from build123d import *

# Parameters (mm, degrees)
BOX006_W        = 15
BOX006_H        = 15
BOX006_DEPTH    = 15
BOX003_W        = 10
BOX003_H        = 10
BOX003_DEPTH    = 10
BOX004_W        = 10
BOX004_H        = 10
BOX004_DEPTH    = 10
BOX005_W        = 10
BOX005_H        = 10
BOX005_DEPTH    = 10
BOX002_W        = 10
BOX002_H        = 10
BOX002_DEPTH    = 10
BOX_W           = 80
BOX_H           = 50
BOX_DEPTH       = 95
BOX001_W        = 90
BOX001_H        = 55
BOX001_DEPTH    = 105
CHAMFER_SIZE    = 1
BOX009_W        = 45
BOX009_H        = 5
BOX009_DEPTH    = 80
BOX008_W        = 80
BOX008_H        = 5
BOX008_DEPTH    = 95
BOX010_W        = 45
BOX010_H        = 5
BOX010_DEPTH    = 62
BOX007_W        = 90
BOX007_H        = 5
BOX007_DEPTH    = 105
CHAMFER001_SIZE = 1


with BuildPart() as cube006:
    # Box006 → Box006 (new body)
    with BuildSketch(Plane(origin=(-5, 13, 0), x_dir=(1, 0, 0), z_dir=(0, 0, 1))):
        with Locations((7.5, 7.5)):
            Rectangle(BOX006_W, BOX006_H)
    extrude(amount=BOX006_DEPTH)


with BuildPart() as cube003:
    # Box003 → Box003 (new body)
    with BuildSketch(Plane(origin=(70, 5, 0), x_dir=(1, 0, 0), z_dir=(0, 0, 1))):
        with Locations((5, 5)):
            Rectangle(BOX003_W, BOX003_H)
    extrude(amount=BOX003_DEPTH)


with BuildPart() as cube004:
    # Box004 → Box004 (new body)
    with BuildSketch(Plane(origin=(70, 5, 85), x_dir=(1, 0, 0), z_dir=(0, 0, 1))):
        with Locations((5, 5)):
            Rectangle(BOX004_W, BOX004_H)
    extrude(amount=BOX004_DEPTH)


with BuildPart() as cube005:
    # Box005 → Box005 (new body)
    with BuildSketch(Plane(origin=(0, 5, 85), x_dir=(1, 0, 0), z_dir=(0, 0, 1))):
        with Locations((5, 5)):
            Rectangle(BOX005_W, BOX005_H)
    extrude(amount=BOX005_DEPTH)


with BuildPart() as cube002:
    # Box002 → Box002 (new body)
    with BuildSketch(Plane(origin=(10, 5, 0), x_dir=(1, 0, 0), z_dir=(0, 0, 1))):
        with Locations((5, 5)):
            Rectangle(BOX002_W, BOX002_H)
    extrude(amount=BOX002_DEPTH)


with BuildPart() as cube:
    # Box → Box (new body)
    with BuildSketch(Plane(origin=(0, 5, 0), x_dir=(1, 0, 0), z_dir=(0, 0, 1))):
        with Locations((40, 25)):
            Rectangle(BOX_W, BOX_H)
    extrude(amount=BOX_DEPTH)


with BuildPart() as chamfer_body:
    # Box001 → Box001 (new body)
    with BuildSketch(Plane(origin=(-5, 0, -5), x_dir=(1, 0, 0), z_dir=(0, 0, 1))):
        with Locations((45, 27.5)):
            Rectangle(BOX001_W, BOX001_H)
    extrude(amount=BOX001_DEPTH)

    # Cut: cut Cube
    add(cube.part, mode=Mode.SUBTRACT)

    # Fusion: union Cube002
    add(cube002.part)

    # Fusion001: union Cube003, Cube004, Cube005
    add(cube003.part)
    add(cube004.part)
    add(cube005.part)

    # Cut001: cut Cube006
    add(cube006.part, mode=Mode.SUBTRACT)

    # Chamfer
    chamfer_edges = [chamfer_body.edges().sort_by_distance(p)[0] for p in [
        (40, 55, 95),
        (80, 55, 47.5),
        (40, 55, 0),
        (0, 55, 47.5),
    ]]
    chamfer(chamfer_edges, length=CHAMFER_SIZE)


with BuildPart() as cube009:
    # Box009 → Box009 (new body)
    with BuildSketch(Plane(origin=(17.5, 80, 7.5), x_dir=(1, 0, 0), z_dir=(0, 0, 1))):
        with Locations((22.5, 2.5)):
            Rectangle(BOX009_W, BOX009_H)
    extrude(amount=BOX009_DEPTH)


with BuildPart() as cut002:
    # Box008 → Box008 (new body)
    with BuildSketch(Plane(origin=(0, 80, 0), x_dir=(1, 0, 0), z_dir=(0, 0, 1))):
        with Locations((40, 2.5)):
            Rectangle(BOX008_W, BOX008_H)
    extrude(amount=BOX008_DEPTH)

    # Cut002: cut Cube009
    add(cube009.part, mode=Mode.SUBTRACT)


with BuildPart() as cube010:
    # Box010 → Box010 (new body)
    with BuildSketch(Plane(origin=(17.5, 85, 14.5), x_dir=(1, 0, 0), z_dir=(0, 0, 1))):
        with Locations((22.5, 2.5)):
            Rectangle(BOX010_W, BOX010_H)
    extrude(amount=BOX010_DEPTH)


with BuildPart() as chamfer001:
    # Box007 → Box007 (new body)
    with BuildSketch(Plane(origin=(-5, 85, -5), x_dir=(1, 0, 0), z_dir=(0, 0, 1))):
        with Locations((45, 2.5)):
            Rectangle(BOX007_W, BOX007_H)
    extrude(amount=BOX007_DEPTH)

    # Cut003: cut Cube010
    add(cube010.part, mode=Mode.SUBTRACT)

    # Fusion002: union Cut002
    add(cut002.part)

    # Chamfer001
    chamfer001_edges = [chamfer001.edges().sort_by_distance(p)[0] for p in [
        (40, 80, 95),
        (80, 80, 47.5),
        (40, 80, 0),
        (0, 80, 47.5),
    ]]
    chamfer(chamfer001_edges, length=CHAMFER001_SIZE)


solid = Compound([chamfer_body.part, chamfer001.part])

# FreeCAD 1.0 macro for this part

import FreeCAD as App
import Part
import Sketcher


def edges_at(feature, points):
    """Names of the edges that pass closest to the given points."""
    edges = feature.Shape.Edges
    near = lambda p: min(range(len(edges)), key=lambda i: edges[i].distToShape(Part.Vertex(*p))[0])
    return sorted({f"Edge{near(p) + 1}" for p in points})

doc = App.newDocument("Part")
body = doc.addObject("PartDesign::Body", "Body")

sketch1 = doc.addObject("Sketcher::SketchObject", "Sketch")
body.addObject(sketch1)
sketch1.AttachmentSupport = (doc.XY_Plane, [""])
sketch1.MapMode = "FlatFace"
sketch1.addGeometry([
    Part.LineSegment(App.Vector(-5, 28, 0), App.Vector(-5, 13, 0)),
    Part.LineSegment(App.Vector(-5, 13, 0), App.Vector(10, 13, 0)),
    Part.LineSegment(App.Vector(10, 13, 0), App.Vector(10, 28, 0)),
    Part.LineSegment(App.Vector(10, 28, 0), App.Vector(-5, 28, 0)),
], False)
sketch1.addConstraint([
    Sketcher.Constraint("Coincident", 0, 2, 1, 1),
    Sketcher.Constraint("Coincident", 1, 2, 2, 1),
    Sketcher.Constraint("Coincident", 2, 2, 3, 1),
    Sketcher.Constraint("Coincident", 3, 2, 0, 1),
    Sketcher.Constraint("Vertical", 0),
    Sketcher.Constraint("Horizontal", 1),
    Sketcher.Constraint("Vertical", 2),
    Sketcher.Constraint("Horizontal", 3),
    Sketcher.Constraint("Equal", 3, 0),
    Sketcher.Constraint("DistanceX", 1, 1, 1, 2, 15.0),
    Sketcher.Constraint("DistanceX", 0, 2, -1, 1, 5.0),
    Sketcher.Constraint("DistanceY", -1, 1, 0, 2, 13.0),
])
pad1 = doc.addObject("PartDesign::Pad", "Pad")
body.addObject(pad1)
pad1.Profile = sketch1
pad1.Length = 15
body2 = doc.addObject("PartDesign::Body", "Body001")

sketch2 = doc.addObject("Sketcher::SketchObject", "Sketch001")
body2.addObject(sketch2)
sketch2.AttachmentSupport = (doc.getObject("XY_Plane001"), [""])
sketch2.MapMode = "FlatFace"
sketch2.addGeometry([
    Part.LineSegment(App.Vector(70, 15, 0), App.Vector(70, 5, 0)),
    Part.LineSegment(App.Vector(70, 5, 0), App.Vector(80, 5, 0)),
    Part.LineSegment(App.Vector(80, 5, 0), App.Vector(80, 15, 0)),
    Part.LineSegment(App.Vector(80, 15, 0), App.Vector(70, 15, 0)),
], False)
sketch2.addConstraint([
    Sketcher.Constraint("Coincident", 0, 2, 1, 1),
    Sketcher.Constraint("Coincident", 1, 2, 2, 1),
    Sketcher.Constraint("Coincident", 2, 2, 3, 1),
    Sketcher.Constraint("Coincident", 3, 2, 0, 1),
    Sketcher.Constraint("Vertical", 0),
    Sketcher.Constraint("Horizontal", 1),
    Sketcher.Constraint("Vertical", 2),
    Sketcher.Constraint("Horizontal", 3),
    Sketcher.Constraint("Equal", 3, 0),
    Sketcher.Constraint("DistanceX", 1, 1, 1, 2, 10.0),
    Sketcher.Constraint("DistanceX", -1, 1, 0, 2, 70.0),
    Sketcher.Constraint("DistanceY", -1, 1, 0, 2, 5.0),
])
pad2 = doc.addObject("PartDesign::Pad", "Pad001")
body2.addObject(pad2)
pad2.Profile = sketch2
pad2.Length = 10
body3 = doc.addObject("PartDesign::Body", "Body002")

sketch3 = doc.addObject("Sketcher::SketchObject", "Sketch002")
body3.addObject(sketch3)
sketch3.AttachmentSupport = (doc.getObject("XY_Plane002"), [""])
sketch3.MapMode = "FlatFace"
sketch3.AttachmentOffset = App.Placement(App.Vector(0, 0, 85), App.Rotation())
sketch3.addGeometry([
    Part.LineSegment(App.Vector(70, 15, 0), App.Vector(70, 5, 0)),
    Part.LineSegment(App.Vector(70, 5, 0), App.Vector(80, 5, 0)),
    Part.LineSegment(App.Vector(80, 5, 0), App.Vector(80, 15, 0)),
    Part.LineSegment(App.Vector(80, 15, 0), App.Vector(70, 15, 0)),
], False)
sketch3.addConstraint([
    Sketcher.Constraint("Coincident", 0, 2, 1, 1),
    Sketcher.Constraint("Coincident", 1, 2, 2, 1),
    Sketcher.Constraint("Coincident", 2, 2, 3, 1),
    Sketcher.Constraint("Coincident", 3, 2, 0, 1),
    Sketcher.Constraint("Vertical", 0),
    Sketcher.Constraint("Horizontal", 1),
    Sketcher.Constraint("Vertical", 2),
    Sketcher.Constraint("Horizontal", 3),
    Sketcher.Constraint("Equal", 3, 0),
    Sketcher.Constraint("DistanceX", 1, 1, 1, 2, 10.0),
    Sketcher.Constraint("DistanceX", -1, 1, 0, 2, 70.0),
    Sketcher.Constraint("DistanceY", -1, 1, 0, 2, 5.0),
])
pad3 = doc.addObject("PartDesign::Pad", "Pad002")
body3.addObject(pad3)
pad3.Profile = sketch3
pad3.Length = 10
body4 = doc.addObject("PartDesign::Body", "Body003")

sketch4 = doc.addObject("Sketcher::SketchObject", "Sketch003")
body4.addObject(sketch4)
sketch4.AttachmentSupport = (doc.getObject("XY_Plane003"), [""])
sketch4.MapMode = "FlatFace"
sketch4.AttachmentOffset = App.Placement(App.Vector(0, 0, 85), App.Rotation())
sketch4.addGeometry([
    Part.LineSegment(App.Vector(0, 15, 0), App.Vector(0, 5, 0)),
    Part.LineSegment(App.Vector(0, 5, 0), App.Vector(10, 5, 0)),
    Part.LineSegment(App.Vector(10, 5, 0), App.Vector(10, 15, 0)),
    Part.LineSegment(App.Vector(10, 15, 0), App.Vector(0, 15, 0)),
], False)
sketch4.addConstraint([
    Sketcher.Constraint("Coincident", 0, 2, 1, 1),
    Sketcher.Constraint("Coincident", 1, 2, 2, 1),
    Sketcher.Constraint("Coincident", 2, 2, 3, 1),
    Sketcher.Constraint("Coincident", 3, 2, 0, 1),
    Sketcher.Constraint("Vertical", 0),
    Sketcher.Constraint("Horizontal", 1),
    Sketcher.Constraint("Vertical", 2),
    Sketcher.Constraint("Horizontal", 3),
    Sketcher.Constraint("PointOnObject", 0, 2, -2),
    Sketcher.Constraint("Equal", 3, 0),
    Sketcher.Constraint("DistanceX", 1, 1, 1, 2, 10.0),
    Sketcher.Constraint("DistanceY", -1, 1, 0, 2, 5.0),
])
pad4 = doc.addObject("PartDesign::Pad", "Pad003")
body4.addObject(pad4)
pad4.Profile = sketch4
pad4.Length = 10
body5 = doc.addObject("PartDesign::Body", "Body004")

sketch5 = doc.addObject("Sketcher::SketchObject", "Sketch004")
body5.addObject(sketch5)
sketch5.AttachmentSupport = (doc.getObject("XY_Plane004"), [""])
sketch5.MapMode = "FlatFace"
sketch5.addGeometry([
    Part.LineSegment(App.Vector(10, 15, 0), App.Vector(10, 5, 0)),
    Part.LineSegment(App.Vector(10, 5, 0), App.Vector(20, 5, 0)),
    Part.LineSegment(App.Vector(20, 5, 0), App.Vector(20, 15, 0)),
    Part.LineSegment(App.Vector(20, 15, 0), App.Vector(10, 15, 0)),
], False)
sketch5.addConstraint([
    Sketcher.Constraint("Coincident", 0, 2, 1, 1),
    Sketcher.Constraint("Coincident", 1, 2, 2, 1),
    Sketcher.Constraint("Coincident", 2, 2, 3, 1),
    Sketcher.Constraint("Coincident", 3, 2, 0, 1),
    Sketcher.Constraint("Vertical", 0),
    Sketcher.Constraint("Horizontal", 1),
    Sketcher.Constraint("Vertical", 2),
    Sketcher.Constraint("Horizontal", 3),
    Sketcher.Constraint("Equal", 3, 0),
    Sketcher.Constraint("DistanceX", 1, 1, 1, 2, 10.0),
    Sketcher.Constraint("DistanceX", -1, 1, 0, 2, 10.0),
    Sketcher.Constraint("DistanceY", -1, 1, 0, 2, 5.0),
])
pad5 = doc.addObject("PartDesign::Pad", "Pad004")
body5.addObject(pad5)
pad5.Profile = sketch5
pad5.Length = 10
body6 = doc.addObject("PartDesign::Body", "Body005")

sketch6 = doc.addObject("Sketcher::SketchObject", "Sketch005")
body6.addObject(sketch6)
sketch6.AttachmentSupport = (doc.getObject("XY_Plane005"), [""])
sketch6.MapMode = "FlatFace"
sketch6.addGeometry([
    Part.LineSegment(App.Vector(0, 55, 0), App.Vector(0, 5, 0)),
    Part.LineSegment(App.Vector(0, 5, 0), App.Vector(80, 5, 0)),
    Part.LineSegment(App.Vector(80, 5, 0), App.Vector(80, 55, 0)),
    Part.LineSegment(App.Vector(80, 55, 0), App.Vector(0, 55, 0)),
], False)
sketch6.addConstraint([
    Sketcher.Constraint("Coincident", 0, 2, 1, 1),
    Sketcher.Constraint("Coincident", 1, 2, 2, 1),
    Sketcher.Constraint("Coincident", 2, 2, 3, 1),
    Sketcher.Constraint("Coincident", 3, 2, 0, 1),
    Sketcher.Constraint("Vertical", 0),
    Sketcher.Constraint("Horizontal", 1),
    Sketcher.Constraint("Vertical", 2),
    Sketcher.Constraint("Horizontal", 3),
    Sketcher.Constraint("PointOnObject", 0, 2, -2),
    Sketcher.Constraint("DistanceX", 1, 1, 1, 2, 80.0),
    Sketcher.Constraint("DistanceY", 0, 2, 0, 1, 50.0),
    Sketcher.Constraint("DistanceY", -1, 1, 0, 2, 5.0),
])
pad6 = doc.addObject("PartDesign::Pad", "Pad005")
body6.addObject(pad6)
pad6.Profile = sketch6
pad6.Length = 95
body7 = doc.addObject("PartDesign::Body", "Body006")

sketch7 = doc.addObject("Sketcher::SketchObject", "Sketch006")
body7.addObject(sketch7)
sketch7.AttachmentSupport = (doc.getObject("XY_Plane006"), [""])
sketch7.MapMode = "FlatFace"
sketch7.AttachmentOffset = App.Placement(App.Vector(0, 0, -5), App.Rotation())
sketch7.addGeometry([
    Part.LineSegment(App.Vector(-5, 55, 0), App.Vector(-5, 0, 0)),
    Part.LineSegment(App.Vector(-5, 0, 0), App.Vector(85, 0, 0)),
    Part.LineSegment(App.Vector(85, 0, 0), App.Vector(85, 55, 0)),
    Part.LineSegment(App.Vector(85, 55, 0), App.Vector(-5, 55, 0)),
], False)
sketch7.addConstraint([
    Sketcher.Constraint("Coincident", 0, 2, 1, 1),
    Sketcher.Constraint("Coincident", 1, 2, 2, 1),
    Sketcher.Constraint("Coincident", 2, 2, 3, 1),
    Sketcher.Constraint("Coincident", 3, 2, 0, 1),
    Sketcher.Constraint("Vertical", 0),
    Sketcher.Constraint("Horizontal", 1),
    Sketcher.Constraint("Vertical", 2),
    Sketcher.Constraint("Horizontal", 3),
    Sketcher.Constraint("PointOnObject", 0, 2, -1),
    Sketcher.Constraint("DistanceX", 1, 1, 1, 2, 90.0),
    Sketcher.Constraint("DistanceY", 0, 2, 0, 1, 55.0),
    Sketcher.Constraint("DistanceX", 0, 2, -1, 1, 5.0),
])
pad7 = doc.addObject("PartDesign::Pad", "Pad006")
body7.addObject(pad7)
pad7.Profile = sketch7
pad7.Length = 105
doc.recompute()

boolean = doc.addObject("PartDesign::Boolean", "Boolean")
body7.addObject(boolean)
boolean.Type = "Cut"
boolean.addObjects([body6])
doc.recompute()

boolean2 = doc.addObject("PartDesign::Boolean", "Boolean001")
body7.addObject(boolean2)
boolean2.Type = "Fuse"
boolean2.addObjects([body5])
doc.recompute()

boolean3 = doc.addObject("PartDesign::Boolean", "Boolean002")
body7.addObject(boolean3)
boolean3.Type = "Fuse"
boolean3.addObjects([body2])
doc.recompute()

boolean4 = doc.addObject("PartDesign::Boolean", "Boolean003")
body7.addObject(boolean4)
boolean4.Type = "Fuse"
boolean4.addObjects([body3])
doc.recompute()

boolean5 = doc.addObject("PartDesign::Boolean", "Boolean004")
body7.addObject(boolean5)
boolean5.Type = "Fuse"
boolean5.addObjects([body4])
doc.recompute()

boolean6 = doc.addObject("PartDesign::Boolean", "Boolean005")
body7.addObject(boolean6)
boolean6.Type = "Cut"
boolean6.addObjects([body])
doc.recompute()

chamfer = doc.addObject("PartDesign::Chamfer", "Chamfer")
body7.addObject(chamfer)
chamfer.Base = (boolean6, edges_at(boolean6, [
    (40, 55, 95),
    (80, 55, 47.5),
    (40, 55, 0),
    (0, 55, 47.5),
]))
chamfer.Size = 1
body8 = doc.addObject("PartDesign::Body", "Body007")

sketch8 = doc.addObject("Sketcher::SketchObject", "Sketch007")
body8.addObject(sketch8)
sketch8.AttachmentSupport = (doc.getObject("XY_Plane007"), [""])
sketch8.MapMode = "FlatFace"
sketch8.AttachmentOffset = App.Placement(App.Vector(0, 0, 7.5), App.Rotation())
sketch8.addGeometry([
    Part.LineSegment(App.Vector(18, 85, 0), App.Vector(18, 80, 0)),
    Part.LineSegment(App.Vector(18, 80, 0), App.Vector(62, 80, 0)),
    Part.LineSegment(App.Vector(62, 80, 0), App.Vector(62, 85, 0)),
    Part.LineSegment(App.Vector(62, 85, 0), App.Vector(18, 85, 0)),
], False)
sketch8.addConstraint([
    Sketcher.Constraint("Coincident", 0, 2, 1, 1),
    Sketcher.Constraint("Coincident", 1, 2, 2, 1),
    Sketcher.Constraint("Coincident", 2, 2, 3, 1),
    Sketcher.Constraint("Coincident", 3, 2, 0, 1),
    Sketcher.Constraint("Vertical", 0),
    Sketcher.Constraint("Horizontal", 1),
    Sketcher.Constraint("Vertical", 2),
    Sketcher.Constraint("Horizontal", 3),
    Sketcher.Constraint("DistanceX", 1, 1, 1, 2, 45.0),
    Sketcher.Constraint("DistanceY", 0, 2, 0, 1, 5.0),
    Sketcher.Constraint("DistanceY", -1, 1, 0, 2, 80.0),
    Sketcher.Constraint("DistanceX", -1, 1, 0, 2, 17.5),
])
pad8 = doc.addObject("PartDesign::Pad", "Pad007")
body8.addObject(pad8)
pad8.Profile = sketch8
pad8.Length = 80
body9 = doc.addObject("PartDesign::Body", "Body008")

sketch9 = doc.addObject("Sketcher::SketchObject", "Sketch008")
body9.addObject(sketch9)
sketch9.AttachmentSupport = (doc.getObject("XY_Plane008"), [""])
sketch9.MapMode = "FlatFace"
sketch9.addGeometry([
    Part.LineSegment(App.Vector(0, 85, 0), App.Vector(0, 80, 0)),
    Part.LineSegment(App.Vector(0, 80, 0), App.Vector(80, 80, 0)),
    Part.LineSegment(App.Vector(80, 80, 0), App.Vector(80, 85, 0)),
    Part.LineSegment(App.Vector(80, 85, 0), App.Vector(0, 85, 0)),
], False)
sketch9.addConstraint([
    Sketcher.Constraint("Coincident", 0, 2, 1, 1),
    Sketcher.Constraint("Coincident", 1, 2, 2, 1),
    Sketcher.Constraint("Coincident", 2, 2, 3, 1),
    Sketcher.Constraint("Coincident", 3, 2, 0, 1),
    Sketcher.Constraint("Vertical", 0),
    Sketcher.Constraint("Horizontal", 1),
    Sketcher.Constraint("Vertical", 2),
    Sketcher.Constraint("Horizontal", 3),
    Sketcher.Constraint("PointOnObject", 0, 2, -2),
    Sketcher.Constraint("DistanceX", 1, 1, 1, 2, 80.0),
    Sketcher.Constraint("DistanceY", 0, 2, 0, 1, 5.0),
    Sketcher.Constraint("DistanceY", -1, 1, 0, 2, 80.0),
])
pad9 = doc.addObject("PartDesign::Pad", "Pad008")
body9.addObject(pad9)
pad9.Profile = sketch9
pad9.Length = 95
doc.recompute()

boolean7 = doc.addObject("PartDesign::Boolean", "Boolean006")
body9.addObject(boolean7)
boolean7.Type = "Cut"
boolean7.addObjects([body8])
body10 = doc.addObject("PartDesign::Body", "Body009")

sketch10 = doc.addObject("Sketcher::SketchObject", "Sketch009")
body10.addObject(sketch10)
sketch10.AttachmentSupport = (doc.getObject("XY_Plane009"), [""])
sketch10.MapMode = "FlatFace"
sketch10.AttachmentOffset = App.Placement(App.Vector(0, 0, 14.5), App.Rotation())
sketch10.addGeometry([
    Part.LineSegment(App.Vector(18, 90, 0), App.Vector(18, 85, 0)),
    Part.LineSegment(App.Vector(18, 85, 0), App.Vector(62, 85, 0)),
    Part.LineSegment(App.Vector(62, 85, 0), App.Vector(62, 90, 0)),
    Part.LineSegment(App.Vector(62, 90, 0), App.Vector(18, 90, 0)),
], False)
sketch10.addConstraint([
    Sketcher.Constraint("Coincident", 0, 2, 1, 1),
    Sketcher.Constraint("Coincident", 1, 2, 2, 1),
    Sketcher.Constraint("Coincident", 2, 2, 3, 1),
    Sketcher.Constraint("Coincident", 3, 2, 0, 1),
    Sketcher.Constraint("Vertical", 0),
    Sketcher.Constraint("Horizontal", 1),
    Sketcher.Constraint("Vertical", 2),
    Sketcher.Constraint("Horizontal", 3),
    Sketcher.Constraint("DistanceX", 1, 1, 1, 2, 45.0),
    Sketcher.Constraint("DistanceY", 0, 2, 0, 1, 5.0),
    Sketcher.Constraint("DistanceY", -1, 1, 0, 2, 85.0),
    Sketcher.Constraint("DistanceX", -1, 1, 0, 2, 17.5),
])
pad10 = doc.addObject("PartDesign::Pad", "Pad009")
body10.addObject(pad10)
pad10.Profile = sketch10
pad10.Length = 62
body11 = doc.addObject("PartDesign::Body", "Body010")

sketch11 = doc.addObject("Sketcher::SketchObject", "Sketch010")
body11.addObject(sketch11)
sketch11.AttachmentSupport = (doc.getObject("XY_Plane010"), [""])
sketch11.MapMode = "FlatFace"
sketch11.AttachmentOffset = App.Placement(App.Vector(0, 0, -5), App.Rotation())
sketch11.addGeometry([
    Part.LineSegment(App.Vector(-5, 90, 0), App.Vector(-5, 85, 0)),
    Part.LineSegment(App.Vector(-5, 85, 0), App.Vector(85, 85, 0)),
    Part.LineSegment(App.Vector(85, 85, 0), App.Vector(85, 90, 0)),
    Part.LineSegment(App.Vector(85, 90, 0), App.Vector(-5, 90, 0)),
], False)
sketch11.addConstraint([
    Sketcher.Constraint("Coincident", 0, 2, 1, 1),
    Sketcher.Constraint("Coincident", 1, 2, 2, 1),
    Sketcher.Constraint("Coincident", 2, 2, 3, 1),
    Sketcher.Constraint("Coincident", 3, 2, 0, 1),
    Sketcher.Constraint("Vertical", 0),
    Sketcher.Constraint("Horizontal", 1),
    Sketcher.Constraint("Vertical", 2),
    Sketcher.Constraint("Horizontal", 3),
    Sketcher.Constraint("DistanceX", 1, 1, 1, 2, 90.0),
    Sketcher.Constraint("DistanceY", 0, 2, 0, 1, 5.0),
    Sketcher.Constraint("DistanceX", 0, 2, -1, 1, 5.0),
    Sketcher.Constraint("DistanceY", -1, 1, 0, 2, 85.0),
])
pad11 = doc.addObject("PartDesign::Pad", "Pad010")
body11.addObject(pad11)
pad11.Profile = sketch11
pad11.Length = 105
doc.recompute()

boolean8 = doc.addObject("PartDesign::Boolean", "Boolean007")
body11.addObject(boolean8)
boolean8.Type = "Cut"
boolean8.addObjects([body10])
doc.recompute()

boolean9 = doc.addObject("PartDesign::Boolean", "Boolean008")
body11.addObject(boolean9)
boolean9.Type = "Fuse"
boolean9.addObjects([body9])
doc.recompute()

chamfer2 = doc.addObject("PartDesign::Chamfer", "Chamfer001")
body11.addObject(chamfer2)
chamfer2.Base = (boolean9, edges_at(boolean9, [
    (40, 80, 95),
    (80, 80, 47.5),
    (40, 80, 0),
    (0, 80, 47.5),
]))
chamfer2.Size = 1

doc.recompute()
